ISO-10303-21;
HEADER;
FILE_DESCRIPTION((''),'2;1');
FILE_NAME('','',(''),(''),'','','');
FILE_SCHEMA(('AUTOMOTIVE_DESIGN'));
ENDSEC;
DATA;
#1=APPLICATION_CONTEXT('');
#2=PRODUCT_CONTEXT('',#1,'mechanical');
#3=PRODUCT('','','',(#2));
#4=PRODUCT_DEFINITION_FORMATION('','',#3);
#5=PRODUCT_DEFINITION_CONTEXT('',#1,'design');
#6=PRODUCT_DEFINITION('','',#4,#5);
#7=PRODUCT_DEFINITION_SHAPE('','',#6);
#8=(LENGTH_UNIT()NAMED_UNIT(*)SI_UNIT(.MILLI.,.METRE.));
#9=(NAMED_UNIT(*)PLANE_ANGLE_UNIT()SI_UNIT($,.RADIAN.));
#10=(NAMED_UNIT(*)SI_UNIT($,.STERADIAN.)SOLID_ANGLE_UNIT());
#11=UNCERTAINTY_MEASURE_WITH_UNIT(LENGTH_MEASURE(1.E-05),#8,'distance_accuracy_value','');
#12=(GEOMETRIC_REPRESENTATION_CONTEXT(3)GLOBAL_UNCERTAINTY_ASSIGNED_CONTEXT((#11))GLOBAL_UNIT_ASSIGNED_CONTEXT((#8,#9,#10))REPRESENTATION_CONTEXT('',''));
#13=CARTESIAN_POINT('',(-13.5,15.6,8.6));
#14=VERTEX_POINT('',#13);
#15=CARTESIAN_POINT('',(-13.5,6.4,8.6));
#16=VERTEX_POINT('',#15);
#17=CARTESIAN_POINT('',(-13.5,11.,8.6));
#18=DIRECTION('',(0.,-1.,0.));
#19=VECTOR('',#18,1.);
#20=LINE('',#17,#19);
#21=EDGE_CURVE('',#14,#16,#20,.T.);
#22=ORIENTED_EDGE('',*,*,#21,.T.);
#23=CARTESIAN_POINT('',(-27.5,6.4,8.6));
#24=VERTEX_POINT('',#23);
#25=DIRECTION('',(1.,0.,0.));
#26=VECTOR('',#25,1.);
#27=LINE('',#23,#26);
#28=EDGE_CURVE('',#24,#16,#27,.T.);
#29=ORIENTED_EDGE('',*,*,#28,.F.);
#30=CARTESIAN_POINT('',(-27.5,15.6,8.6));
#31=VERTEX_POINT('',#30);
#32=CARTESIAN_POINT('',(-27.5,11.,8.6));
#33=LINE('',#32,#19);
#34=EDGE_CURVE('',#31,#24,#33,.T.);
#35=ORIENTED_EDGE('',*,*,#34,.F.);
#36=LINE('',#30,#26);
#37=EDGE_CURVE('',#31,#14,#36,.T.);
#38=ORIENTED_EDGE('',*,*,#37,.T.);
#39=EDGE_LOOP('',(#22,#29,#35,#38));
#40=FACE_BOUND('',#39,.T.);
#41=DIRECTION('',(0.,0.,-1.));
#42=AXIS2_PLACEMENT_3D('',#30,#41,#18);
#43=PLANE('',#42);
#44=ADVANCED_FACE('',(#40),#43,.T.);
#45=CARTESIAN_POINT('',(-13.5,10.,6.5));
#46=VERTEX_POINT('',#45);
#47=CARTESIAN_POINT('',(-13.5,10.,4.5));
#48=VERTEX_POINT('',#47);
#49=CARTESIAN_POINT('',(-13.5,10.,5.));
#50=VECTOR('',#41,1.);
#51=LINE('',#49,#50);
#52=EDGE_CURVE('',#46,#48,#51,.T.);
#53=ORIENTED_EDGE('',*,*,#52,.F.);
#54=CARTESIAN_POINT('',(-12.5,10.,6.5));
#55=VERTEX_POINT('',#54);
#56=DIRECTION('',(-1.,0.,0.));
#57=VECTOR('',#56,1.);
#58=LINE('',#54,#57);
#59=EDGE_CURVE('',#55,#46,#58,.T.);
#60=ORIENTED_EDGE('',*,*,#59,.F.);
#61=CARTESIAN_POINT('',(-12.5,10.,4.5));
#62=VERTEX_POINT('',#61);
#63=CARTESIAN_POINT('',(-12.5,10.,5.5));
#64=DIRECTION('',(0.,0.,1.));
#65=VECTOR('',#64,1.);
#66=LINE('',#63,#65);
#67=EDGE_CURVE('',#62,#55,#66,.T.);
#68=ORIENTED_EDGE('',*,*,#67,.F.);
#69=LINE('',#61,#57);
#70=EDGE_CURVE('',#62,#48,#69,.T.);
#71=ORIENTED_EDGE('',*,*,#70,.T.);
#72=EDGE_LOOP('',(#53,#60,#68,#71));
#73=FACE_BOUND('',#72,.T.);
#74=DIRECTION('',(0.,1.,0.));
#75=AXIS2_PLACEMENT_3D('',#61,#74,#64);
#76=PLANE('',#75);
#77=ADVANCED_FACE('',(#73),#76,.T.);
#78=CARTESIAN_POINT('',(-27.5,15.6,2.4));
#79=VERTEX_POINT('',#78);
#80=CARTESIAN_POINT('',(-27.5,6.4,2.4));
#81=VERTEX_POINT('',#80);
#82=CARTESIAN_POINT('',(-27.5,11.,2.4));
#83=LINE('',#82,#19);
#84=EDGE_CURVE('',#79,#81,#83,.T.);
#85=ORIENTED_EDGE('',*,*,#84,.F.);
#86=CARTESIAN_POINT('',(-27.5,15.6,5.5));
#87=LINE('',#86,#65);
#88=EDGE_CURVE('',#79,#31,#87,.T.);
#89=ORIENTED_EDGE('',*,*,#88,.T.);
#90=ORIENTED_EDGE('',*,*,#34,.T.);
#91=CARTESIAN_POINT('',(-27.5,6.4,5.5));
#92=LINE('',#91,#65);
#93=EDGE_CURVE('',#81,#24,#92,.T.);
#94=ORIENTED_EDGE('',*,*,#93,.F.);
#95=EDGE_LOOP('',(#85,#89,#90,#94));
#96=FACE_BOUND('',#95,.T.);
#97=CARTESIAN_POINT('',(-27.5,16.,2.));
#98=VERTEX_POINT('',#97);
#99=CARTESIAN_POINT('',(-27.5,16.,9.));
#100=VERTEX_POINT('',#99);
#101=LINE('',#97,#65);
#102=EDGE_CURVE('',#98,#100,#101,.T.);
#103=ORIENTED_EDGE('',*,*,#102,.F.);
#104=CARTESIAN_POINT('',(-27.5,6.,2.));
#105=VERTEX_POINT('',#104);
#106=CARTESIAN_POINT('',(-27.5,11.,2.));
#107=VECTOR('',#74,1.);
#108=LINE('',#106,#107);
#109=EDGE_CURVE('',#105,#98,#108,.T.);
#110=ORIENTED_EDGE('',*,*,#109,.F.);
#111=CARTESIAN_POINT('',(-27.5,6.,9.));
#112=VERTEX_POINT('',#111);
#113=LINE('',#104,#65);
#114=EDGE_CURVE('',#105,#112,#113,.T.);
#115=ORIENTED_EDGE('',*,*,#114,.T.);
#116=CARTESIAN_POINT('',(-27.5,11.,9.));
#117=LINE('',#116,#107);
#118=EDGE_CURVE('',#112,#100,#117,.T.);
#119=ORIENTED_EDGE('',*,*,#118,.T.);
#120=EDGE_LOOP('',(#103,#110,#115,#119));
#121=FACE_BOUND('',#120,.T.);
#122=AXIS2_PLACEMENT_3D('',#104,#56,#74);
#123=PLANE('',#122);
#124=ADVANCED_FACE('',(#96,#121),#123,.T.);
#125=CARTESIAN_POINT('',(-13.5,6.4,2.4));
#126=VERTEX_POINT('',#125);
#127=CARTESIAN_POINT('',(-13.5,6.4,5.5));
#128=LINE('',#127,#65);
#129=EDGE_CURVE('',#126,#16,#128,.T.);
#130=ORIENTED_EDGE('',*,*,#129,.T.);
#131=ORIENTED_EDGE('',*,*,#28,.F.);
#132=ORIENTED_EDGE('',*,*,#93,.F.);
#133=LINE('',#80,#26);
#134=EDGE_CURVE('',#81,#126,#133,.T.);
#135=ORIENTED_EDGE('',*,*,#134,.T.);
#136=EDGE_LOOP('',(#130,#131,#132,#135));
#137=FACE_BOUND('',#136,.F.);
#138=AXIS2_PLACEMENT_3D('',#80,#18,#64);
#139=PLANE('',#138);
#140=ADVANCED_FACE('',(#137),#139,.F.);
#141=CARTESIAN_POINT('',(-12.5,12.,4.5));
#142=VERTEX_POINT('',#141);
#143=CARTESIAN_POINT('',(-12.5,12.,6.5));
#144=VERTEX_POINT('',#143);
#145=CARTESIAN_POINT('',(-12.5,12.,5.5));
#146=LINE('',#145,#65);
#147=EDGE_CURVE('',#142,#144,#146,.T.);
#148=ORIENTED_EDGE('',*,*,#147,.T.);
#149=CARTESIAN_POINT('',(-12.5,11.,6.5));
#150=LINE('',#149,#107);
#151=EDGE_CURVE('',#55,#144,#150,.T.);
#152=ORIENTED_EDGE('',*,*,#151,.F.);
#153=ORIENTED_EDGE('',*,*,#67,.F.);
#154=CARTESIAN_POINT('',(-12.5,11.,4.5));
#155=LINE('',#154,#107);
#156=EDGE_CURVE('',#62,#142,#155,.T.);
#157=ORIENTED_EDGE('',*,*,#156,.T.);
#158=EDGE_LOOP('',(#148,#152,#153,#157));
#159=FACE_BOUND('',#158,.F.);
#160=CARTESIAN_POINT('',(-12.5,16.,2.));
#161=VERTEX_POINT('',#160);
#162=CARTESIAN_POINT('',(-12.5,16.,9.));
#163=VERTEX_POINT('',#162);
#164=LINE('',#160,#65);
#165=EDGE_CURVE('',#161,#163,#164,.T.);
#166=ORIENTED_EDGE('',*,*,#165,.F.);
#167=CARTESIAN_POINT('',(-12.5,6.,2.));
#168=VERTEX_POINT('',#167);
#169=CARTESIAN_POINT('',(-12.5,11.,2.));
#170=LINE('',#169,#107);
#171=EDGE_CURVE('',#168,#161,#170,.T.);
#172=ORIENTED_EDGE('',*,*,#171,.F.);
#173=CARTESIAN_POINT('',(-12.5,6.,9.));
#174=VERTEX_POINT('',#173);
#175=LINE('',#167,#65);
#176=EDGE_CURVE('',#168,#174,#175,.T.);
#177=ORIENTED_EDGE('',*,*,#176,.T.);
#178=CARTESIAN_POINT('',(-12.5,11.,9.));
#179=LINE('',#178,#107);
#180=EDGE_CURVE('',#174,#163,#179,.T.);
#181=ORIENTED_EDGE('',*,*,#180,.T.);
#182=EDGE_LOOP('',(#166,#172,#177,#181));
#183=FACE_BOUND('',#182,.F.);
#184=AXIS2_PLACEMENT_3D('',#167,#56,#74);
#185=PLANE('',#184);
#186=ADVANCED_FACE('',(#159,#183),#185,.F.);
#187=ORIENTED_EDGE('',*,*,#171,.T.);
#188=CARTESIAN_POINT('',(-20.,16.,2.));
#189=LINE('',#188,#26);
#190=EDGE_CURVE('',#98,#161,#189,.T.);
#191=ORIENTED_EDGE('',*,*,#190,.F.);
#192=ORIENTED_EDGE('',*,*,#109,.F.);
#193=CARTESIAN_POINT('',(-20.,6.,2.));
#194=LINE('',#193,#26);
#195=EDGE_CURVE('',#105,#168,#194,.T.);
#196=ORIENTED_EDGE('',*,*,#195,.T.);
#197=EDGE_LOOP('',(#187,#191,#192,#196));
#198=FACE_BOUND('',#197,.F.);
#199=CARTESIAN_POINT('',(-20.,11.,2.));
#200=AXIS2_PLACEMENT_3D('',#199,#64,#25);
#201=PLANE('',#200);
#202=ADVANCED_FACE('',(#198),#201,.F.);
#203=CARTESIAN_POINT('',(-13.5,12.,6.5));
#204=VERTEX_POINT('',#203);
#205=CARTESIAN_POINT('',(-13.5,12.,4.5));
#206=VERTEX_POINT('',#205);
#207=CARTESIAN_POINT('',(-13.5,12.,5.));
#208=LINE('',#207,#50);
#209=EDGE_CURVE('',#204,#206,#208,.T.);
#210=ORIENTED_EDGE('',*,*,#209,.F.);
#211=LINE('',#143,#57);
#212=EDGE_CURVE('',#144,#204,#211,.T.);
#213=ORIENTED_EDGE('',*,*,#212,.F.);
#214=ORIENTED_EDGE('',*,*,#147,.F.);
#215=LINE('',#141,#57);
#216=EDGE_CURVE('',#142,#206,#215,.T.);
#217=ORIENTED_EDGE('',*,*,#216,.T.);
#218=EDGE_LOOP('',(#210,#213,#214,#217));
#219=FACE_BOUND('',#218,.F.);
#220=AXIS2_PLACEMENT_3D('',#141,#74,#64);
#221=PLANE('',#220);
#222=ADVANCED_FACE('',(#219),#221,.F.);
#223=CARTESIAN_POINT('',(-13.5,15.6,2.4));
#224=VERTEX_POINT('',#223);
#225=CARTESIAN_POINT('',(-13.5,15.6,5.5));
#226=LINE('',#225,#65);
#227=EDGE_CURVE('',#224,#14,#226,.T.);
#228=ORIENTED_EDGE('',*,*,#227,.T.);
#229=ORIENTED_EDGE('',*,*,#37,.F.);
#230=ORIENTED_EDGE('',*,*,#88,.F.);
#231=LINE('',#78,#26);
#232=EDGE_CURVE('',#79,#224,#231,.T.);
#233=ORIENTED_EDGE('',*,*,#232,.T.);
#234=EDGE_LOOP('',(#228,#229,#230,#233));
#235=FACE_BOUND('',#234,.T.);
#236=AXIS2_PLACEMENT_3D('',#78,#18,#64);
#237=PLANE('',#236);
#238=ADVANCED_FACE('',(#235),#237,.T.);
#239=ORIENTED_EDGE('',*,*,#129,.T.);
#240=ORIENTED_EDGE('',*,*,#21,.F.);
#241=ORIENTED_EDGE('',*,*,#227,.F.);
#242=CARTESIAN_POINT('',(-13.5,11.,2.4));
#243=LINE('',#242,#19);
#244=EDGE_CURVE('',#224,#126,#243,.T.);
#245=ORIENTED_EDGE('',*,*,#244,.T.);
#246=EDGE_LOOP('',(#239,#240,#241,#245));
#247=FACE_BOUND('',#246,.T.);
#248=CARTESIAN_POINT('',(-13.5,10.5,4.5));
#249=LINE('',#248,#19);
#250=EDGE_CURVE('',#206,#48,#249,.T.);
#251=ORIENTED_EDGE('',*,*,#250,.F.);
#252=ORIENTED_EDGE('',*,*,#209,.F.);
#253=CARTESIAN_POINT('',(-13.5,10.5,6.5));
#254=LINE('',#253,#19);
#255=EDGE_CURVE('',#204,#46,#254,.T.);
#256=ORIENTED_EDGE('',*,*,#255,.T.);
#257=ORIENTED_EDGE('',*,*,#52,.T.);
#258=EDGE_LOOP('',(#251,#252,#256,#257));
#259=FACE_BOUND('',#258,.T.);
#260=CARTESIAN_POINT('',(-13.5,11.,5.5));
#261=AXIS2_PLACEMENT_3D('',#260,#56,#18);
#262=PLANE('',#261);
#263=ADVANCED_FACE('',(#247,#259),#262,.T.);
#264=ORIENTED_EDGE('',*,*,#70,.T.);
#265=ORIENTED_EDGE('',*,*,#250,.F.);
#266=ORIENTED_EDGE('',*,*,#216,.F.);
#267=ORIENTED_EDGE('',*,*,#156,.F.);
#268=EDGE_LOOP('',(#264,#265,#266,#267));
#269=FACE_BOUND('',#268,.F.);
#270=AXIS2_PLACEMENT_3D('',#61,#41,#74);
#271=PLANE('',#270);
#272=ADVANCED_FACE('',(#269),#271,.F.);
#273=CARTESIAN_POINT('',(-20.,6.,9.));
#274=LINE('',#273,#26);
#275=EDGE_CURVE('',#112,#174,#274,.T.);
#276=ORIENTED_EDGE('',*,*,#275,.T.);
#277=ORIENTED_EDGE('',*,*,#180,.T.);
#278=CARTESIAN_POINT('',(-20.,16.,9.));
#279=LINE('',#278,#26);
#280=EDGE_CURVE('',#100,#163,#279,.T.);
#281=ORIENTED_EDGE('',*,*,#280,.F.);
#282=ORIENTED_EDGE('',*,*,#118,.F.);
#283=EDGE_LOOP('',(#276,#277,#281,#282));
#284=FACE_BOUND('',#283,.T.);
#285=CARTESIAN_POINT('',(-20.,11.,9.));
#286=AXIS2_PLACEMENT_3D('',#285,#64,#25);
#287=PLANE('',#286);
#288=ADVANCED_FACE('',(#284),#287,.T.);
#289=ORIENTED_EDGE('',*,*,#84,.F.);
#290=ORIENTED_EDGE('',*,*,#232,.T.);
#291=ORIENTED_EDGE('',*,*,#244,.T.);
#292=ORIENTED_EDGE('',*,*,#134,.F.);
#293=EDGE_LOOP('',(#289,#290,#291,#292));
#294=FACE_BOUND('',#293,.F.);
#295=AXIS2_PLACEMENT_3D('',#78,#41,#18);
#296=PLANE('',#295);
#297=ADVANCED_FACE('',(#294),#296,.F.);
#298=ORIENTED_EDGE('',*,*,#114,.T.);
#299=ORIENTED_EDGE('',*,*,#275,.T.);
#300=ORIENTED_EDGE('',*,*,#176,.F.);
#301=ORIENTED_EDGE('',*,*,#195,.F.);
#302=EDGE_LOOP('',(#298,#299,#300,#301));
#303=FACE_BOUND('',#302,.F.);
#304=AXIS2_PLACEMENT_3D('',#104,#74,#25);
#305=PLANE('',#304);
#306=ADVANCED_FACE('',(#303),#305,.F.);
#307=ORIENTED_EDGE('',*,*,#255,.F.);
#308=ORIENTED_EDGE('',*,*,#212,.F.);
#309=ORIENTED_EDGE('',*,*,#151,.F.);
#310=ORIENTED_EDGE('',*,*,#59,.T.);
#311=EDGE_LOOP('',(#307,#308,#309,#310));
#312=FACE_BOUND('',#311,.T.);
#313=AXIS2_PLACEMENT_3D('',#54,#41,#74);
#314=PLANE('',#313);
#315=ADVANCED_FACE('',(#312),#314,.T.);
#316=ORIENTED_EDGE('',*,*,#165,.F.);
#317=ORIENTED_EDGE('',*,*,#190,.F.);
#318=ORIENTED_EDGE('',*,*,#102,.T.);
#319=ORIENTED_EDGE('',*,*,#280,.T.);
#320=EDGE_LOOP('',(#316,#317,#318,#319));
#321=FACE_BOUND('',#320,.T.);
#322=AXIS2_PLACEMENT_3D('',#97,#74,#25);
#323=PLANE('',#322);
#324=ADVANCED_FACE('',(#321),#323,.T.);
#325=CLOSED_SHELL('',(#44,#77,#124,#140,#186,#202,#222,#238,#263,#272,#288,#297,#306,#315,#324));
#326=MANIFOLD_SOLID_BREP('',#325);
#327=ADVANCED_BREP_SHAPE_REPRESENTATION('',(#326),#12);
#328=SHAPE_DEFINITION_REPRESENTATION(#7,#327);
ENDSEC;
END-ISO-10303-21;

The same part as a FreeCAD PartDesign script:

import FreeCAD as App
import Part
import Sketcher

doc = App.newDocument("Part")
body = doc.addObject("PartDesign::Body", "Body")

# Sketch on XY plane
sketch1 = body.newObject("Sketcher::SketchObject", "Sketch")
sketch1.AttachmentSupport = (doc.getObject("XY_Plane"), [""])
sketch1.MapMode = "FlatFace"
sketch1.addGeometry([
    Part.LineSegment(App.Vector(-8, 5, 0), App.Vector(-8, -5, 0)),
    Part.LineSegment(App.Vector(-8, -5, 0), App.Vector(8, -5, 0)),
    Part.LineSegment(App.Vector(8, -5, 0), App.Vector(8, 5, 0)),
    Part.LineSegment(App.Vector(8, 5, 0), App.Vector(-8, 5, 0)),
], False)
sketch1.addConstraint([
    Sketcher.Constraint("Coincident", 0, 2, 1, 1),
    Sketcher.Constraint("Coincident", 1, 2, 2, 1),
    Sketcher.Constraint("Coincident", 2, 2, 3, 1),
    Sketcher.Constraint("Coincident", 3, 2, 0, 1),
    Sketcher.Constraint("Vertical", 0),
    Sketcher.Constraint("Horizontal", 1),
    Sketcher.Constraint("Vertical", 2),
    Sketcher.Constraint("Horizontal", 3),
    Sketcher.Constraint("Symmetric", 0, 2, 2, 2, -1, 1),
    Sketcher.Constraint("DistanceX", 1, 1, 1, 2, 15.0),
    Sketcher.Constraint("DistanceY", 0, 2, 0, 1, 10.0),
])
pad1 = body.newObject("PartDesign::Pad", "Pad")
pad1.Profile = sketch1
pad1.Length = 7

# Sketch on YZ plane
sketch2 = body.newObject("Sketcher::SketchObject", "Sketch001")
sketch2.AttachmentSupport = (doc.getObject("YZ_Plane"), [""])
sketch2.MapMode = "FlatFace"
sketch2.AttachmentOffset = App.Placement(App.Vector(0, 0, -7.5), App.Rotation())
sketch2.addGeometry([
    Part.LineSegment(App.Vector(5, 7, 0), App.Vector(5, 0, 0)),
    Part.LineSegment(App.Vector(5, 0, 0), App.Vector(-5, 0, 0)),
    Part.LineSegment(App.Vector(-5, 0, 0), App.Vector(-5, 7, 0)),
    Part.LineSegment(App.Vector(-5, 7, 0), App.Vector(5, 7, 0)),
], False)
sketch2.addConstraint([
    Sketcher.Constraint("Coincident", 0, 2, 1, 1),
    Sketcher.Constraint("Coincident", 1, 2, 2, 1),
    Sketcher.Constraint("Coincident", 2, 2, 3, 1),
    Sketcher.Constraint("Coincident", 3, 2, 0, 1),
    Sketcher.Constraint("Vertical", 0),
    Sketcher.Constraint("Horizontal", 1),
    Sketcher.Constraint("Vertical", 2),
    Sketcher.Constraint("Horizontal", 3),
    Sketcher.Constraint("DistanceX", 1, 2, 1, 1, 9.2),
    Sketcher.Constraint("DistanceY", 0, 2, 0, 1, 6.2),
    Sketcher.Constraint("DistanceX", -1, 1, 0, 2, 4.6),
    Sketcher.Constraint("DistanceY", -1, 1, 0, 2, 0.4),
])
pocket1 = body.newObject("PartDesign::Pocket", "Pocket")
pocket1.Profile = sketch2
pocket1.Length = 14
pocket1.Reversed = True

# Sketch on YZ plane
sketch3 = body.newObject("Sketcher::SketchObject", "Sketch002")
sketch3.AttachmentSupport = (doc.getObject("YZ_Plane"), [""])
sketch3.MapMode = "FlatFace"
sketch3.AttachmentOffset = App.Placement(App.Vector(0, 0, 7.5), App.Rotation())
sketch3.addGeometry([
    Part.LineSegment(App.Vector(-1, 4.5, 0), App.Vector(-1, 2.5, 0)),
    Part.LineSegment(App.Vector(-1, 2.5, 0), App.Vector(1, 2.5, 0)),
    Part.LineSegment(App.Vector(1, 2.5, 0), App.Vector(1, 4.5, 0)),
    Part.LineSegment(App.Vector(1, 4.5, 0), App.Vector(-1, 4.5, 0)),
], False)
sketch3.addConstraint([
    Sketcher.Constraint("Coincident", 0, 2, 1, 1),
    Sketcher.Constraint("Coincident", 1, 2, 2, 1),
    Sketcher.Constraint("Coincident", 2, 2, 3, 1),
    Sketcher.Constraint("Coincident", 3, 2, 0, 1),
    Sketcher.Constraint("Vertical", 0),
    Sketcher.Constraint("Horizontal", 1),
    Sketcher.Constraint("Vertical", 2),
    Sketcher.Constraint("Horizontal", 3),
    Sketcher.Constraint("Equal", 3, 0),
    Sketcher.Constraint("DistanceX", 1, 1, 1, 2, 2.0),
    Sketcher.Constraint("DistanceX", 0, 2, -1, 1, 1.0),
    Sketcher.Constraint("DistanceY", -1, 1, 0, 2, 2.5),
])
pocket2 = body.newObject("PartDesign::Pocket", "Pocket001")
pocket2.Profile = sketch3
pocket2.Length = 5
body2 = doc.addObject("PartDesign::Body", "Body001")
doc.recompute()

body.Placement = App.Placement(App.Vector(-20, 11, 2), App.Rotation(App.Vector(0, 0, 1), 0))
boolean = body2.newObject("PartDesign::Boolean", "Boolean")
boolean.Type = "Fuse"
boolean.addObjects([body])

doc.recompute()
